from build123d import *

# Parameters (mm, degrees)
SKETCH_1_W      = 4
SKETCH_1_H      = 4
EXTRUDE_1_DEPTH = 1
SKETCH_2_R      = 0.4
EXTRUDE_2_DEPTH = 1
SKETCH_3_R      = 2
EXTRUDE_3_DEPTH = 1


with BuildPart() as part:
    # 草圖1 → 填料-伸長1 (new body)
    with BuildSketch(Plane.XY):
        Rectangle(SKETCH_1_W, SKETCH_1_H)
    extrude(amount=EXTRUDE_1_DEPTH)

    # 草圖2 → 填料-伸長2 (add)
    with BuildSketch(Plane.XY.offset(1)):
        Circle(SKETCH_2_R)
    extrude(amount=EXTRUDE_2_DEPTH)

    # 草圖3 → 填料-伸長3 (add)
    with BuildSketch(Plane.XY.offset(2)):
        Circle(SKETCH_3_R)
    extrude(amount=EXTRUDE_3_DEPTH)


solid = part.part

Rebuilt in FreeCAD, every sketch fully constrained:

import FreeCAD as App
import Part
import Sketcher

doc = App.newDocument("Part")
body = doc.addObject("PartDesign::Body", "Body")

# Sketch on XY plane
sketch1 = body.newObject("Sketcher::SketchObject", "Sketch")
sketch1.AttachmentSupport = (doc.getObject("XY_Plane"), [""])
sketch1.MapMode = "FlatFace"
sketch1.addGeometry([
    Part.LineSegment(App.Vector(-2, 2, 0), App.Vector(-2, -2, 0)),
    Part.LineSegment(App.Vector(-2, -2, 0), App.Vector(2, -2, 0)),
    Part.LineSegment(App.Vector(2, -2, 0), App.Vector(2, 2, 0)),
    Part.LineSegment(App.Vector(2, 2, 0), App.Vector(-2, 2, 0)),
], False)
sketch1.addConstraint([
    Sketcher.Constraint("Coincident", 0, 2, 1, 1),
    Sketcher.Constraint("Coincident", 1, 2, 2, 1),
    Sketcher.Constraint("Coincident", 2, 2, 3, 1),
    Sketcher.Constraint("Coincident", 3, 2, 0, 1),
    Sketcher.Constraint("Vertical", 0),
    Sketcher.Constraint("Horizontal", 1),
    Sketcher.Constraint("Vertical", 2),
    Sketcher.Constraint("Horizontal", 3),
    Sketcher.Constraint("Symmetric", 0, 2, 2, 2, -1, 1),
    Sketcher.Constraint("Equal", 3, 0),
    Sketcher.Constraint("DistanceX", 1, 1, 1, 2, 4.0),
])
pad1 = body.newObject("PartDesign::Pad", "Pad")
pad1.Profile = sketch1
pad1.Length = 1

# Sketch on XY plane
sketch2 = body.newObject("Sketcher::SketchObject", "Sketch001")
sketch2.AttachmentSupport = (doc.getObject("XY_Plane"), [""])
sketch2.MapMode = "FlatFace"
sketch2.AttachmentOffset = App.Placement(App.Vector(0, 0, 1), App.Rotation())
sketch2.addGeometry(Part.Circle(App.Vector(0, 0, 0), App.Vector(0, 0, 1), 0.4), False)
sketch2.addConstraint([
    Sketcher.Constraint("Coincident", 0, 3, -1, 1),
    Sketcher.Constraint("Diameter", 0, 0.8),
])
pad2 = body.newObject("PartDesign::Pad", "Pad001")
pad2.Profile = sketch2
pad2.Length = 1

# Sketch on XY plane
sketch3 = body.newObject("Sketcher::SketchObject", "Sketch002")
sketch3.AttachmentSupport = (doc.getObject("XY_Plane"), [""])
sketch3.MapMode = "FlatFace"
sketch3.AttachmentOffset = App.Placement(App.Vector(0, 0, 2), App.Rotation())
sketch3.addGeometry(Part.Circle(App.Vector(0, 0, 0), App.Vector(0, 0, 1), 2), False)
sketch3.addConstraint([
    Sketcher.Constraint("Coincident", 0, 3, -1, 1),
    Sketcher.Constraint("Diameter", 0, 4.0),
])
pad3 = body.newObject("PartDesign::Pad", "Pad002")
pad3.Profile = sketch3
pad3.Length = 1

doc.recompute()
